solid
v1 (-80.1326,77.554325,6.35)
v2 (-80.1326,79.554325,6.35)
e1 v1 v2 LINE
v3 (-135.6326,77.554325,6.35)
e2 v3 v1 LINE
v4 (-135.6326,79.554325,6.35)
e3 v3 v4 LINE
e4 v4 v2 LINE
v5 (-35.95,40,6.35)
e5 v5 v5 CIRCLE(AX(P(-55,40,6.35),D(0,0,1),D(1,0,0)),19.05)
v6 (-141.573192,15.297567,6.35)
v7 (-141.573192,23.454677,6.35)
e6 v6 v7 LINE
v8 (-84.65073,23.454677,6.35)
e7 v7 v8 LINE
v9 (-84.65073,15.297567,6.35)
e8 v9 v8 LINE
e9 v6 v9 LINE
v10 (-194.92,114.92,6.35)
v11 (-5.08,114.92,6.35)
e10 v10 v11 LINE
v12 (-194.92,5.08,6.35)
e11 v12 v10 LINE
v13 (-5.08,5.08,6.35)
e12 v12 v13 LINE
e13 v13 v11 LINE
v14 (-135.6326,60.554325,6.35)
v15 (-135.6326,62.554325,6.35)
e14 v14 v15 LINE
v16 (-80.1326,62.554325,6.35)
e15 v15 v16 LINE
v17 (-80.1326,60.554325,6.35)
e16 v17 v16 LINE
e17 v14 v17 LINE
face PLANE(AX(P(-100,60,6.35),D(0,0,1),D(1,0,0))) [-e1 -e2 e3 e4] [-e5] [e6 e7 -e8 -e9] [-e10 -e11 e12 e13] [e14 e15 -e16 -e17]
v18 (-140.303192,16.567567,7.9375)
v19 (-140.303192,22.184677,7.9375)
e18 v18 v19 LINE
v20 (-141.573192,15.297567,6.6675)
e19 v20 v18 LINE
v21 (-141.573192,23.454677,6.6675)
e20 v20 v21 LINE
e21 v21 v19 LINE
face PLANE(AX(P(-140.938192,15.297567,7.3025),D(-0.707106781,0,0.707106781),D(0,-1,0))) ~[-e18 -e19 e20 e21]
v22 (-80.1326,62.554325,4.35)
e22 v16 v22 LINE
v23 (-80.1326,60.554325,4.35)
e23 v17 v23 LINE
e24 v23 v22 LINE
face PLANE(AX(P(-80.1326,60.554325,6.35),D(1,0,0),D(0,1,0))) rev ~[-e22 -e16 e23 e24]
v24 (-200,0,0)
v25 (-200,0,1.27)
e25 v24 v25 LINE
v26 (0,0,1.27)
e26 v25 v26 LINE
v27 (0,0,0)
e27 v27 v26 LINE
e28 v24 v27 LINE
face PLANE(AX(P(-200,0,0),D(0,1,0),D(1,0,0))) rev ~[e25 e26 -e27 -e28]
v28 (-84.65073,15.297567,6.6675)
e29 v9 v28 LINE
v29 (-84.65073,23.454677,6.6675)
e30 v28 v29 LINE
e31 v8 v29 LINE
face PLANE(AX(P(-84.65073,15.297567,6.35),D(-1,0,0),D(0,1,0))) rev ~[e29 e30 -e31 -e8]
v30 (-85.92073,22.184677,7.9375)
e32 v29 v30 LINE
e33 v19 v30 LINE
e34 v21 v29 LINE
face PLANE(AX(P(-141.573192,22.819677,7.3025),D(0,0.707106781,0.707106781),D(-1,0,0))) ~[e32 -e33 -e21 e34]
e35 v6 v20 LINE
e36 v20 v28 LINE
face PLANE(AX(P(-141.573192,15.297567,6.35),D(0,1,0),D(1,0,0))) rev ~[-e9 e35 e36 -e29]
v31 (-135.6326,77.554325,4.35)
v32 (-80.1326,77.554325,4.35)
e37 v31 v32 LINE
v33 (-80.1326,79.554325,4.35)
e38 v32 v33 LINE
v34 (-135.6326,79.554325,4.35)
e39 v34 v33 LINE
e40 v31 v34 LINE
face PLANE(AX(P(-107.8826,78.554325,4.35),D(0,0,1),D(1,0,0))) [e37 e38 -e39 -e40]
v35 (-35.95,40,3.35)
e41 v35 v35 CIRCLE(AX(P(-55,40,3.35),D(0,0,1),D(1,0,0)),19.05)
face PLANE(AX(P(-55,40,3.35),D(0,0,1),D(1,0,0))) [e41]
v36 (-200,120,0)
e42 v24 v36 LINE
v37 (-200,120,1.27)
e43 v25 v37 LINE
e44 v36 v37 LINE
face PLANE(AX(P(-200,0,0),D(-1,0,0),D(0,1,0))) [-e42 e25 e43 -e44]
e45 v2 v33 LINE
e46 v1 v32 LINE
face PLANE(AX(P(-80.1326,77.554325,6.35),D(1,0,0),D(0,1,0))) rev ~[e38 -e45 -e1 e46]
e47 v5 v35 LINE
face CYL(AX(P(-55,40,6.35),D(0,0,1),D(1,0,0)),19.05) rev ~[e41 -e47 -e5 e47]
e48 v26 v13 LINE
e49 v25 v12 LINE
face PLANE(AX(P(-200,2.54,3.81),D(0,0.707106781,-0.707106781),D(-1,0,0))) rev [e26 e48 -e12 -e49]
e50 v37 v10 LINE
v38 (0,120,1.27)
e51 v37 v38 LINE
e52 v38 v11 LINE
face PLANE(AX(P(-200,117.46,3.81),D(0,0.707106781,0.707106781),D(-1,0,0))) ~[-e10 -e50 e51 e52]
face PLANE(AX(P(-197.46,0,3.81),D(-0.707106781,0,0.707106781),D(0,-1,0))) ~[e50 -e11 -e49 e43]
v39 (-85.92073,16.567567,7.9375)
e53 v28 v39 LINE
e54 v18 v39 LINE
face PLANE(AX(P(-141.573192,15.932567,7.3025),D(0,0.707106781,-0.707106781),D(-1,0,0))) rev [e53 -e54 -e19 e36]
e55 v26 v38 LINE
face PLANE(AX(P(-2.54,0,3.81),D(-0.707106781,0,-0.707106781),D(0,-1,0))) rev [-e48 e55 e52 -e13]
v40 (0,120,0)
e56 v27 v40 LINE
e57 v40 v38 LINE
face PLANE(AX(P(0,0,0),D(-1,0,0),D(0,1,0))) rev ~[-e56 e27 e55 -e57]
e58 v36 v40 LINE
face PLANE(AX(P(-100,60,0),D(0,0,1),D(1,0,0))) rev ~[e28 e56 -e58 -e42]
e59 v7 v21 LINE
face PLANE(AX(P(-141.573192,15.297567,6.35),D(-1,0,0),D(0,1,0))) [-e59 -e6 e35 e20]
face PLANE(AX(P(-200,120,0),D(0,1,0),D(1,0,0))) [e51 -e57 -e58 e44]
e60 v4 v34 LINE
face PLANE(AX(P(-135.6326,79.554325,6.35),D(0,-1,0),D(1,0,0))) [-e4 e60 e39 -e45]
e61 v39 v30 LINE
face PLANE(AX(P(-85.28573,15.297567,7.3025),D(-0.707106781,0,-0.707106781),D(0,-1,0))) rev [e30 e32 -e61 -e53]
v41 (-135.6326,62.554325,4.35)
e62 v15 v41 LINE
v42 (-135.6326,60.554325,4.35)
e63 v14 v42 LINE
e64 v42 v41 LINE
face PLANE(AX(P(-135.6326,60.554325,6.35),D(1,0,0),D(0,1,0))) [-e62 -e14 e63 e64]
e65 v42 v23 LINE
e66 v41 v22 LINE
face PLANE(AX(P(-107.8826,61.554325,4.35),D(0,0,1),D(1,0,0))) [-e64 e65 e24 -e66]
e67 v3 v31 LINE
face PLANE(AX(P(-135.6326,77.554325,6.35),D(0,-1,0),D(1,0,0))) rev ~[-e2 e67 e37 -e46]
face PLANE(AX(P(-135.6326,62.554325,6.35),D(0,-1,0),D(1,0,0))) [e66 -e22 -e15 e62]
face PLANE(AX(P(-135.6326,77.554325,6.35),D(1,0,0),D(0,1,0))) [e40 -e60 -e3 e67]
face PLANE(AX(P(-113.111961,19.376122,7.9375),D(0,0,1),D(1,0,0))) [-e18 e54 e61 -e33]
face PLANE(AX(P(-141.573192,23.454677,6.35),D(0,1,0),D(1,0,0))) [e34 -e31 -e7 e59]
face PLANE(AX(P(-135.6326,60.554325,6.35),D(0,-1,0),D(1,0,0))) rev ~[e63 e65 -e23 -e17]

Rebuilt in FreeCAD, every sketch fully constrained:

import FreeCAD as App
import Part
import Sketcher

V = App.Vector


def edges_at(feature, points):
    """Names of the edges that pass closest to the given points."""
    edges = feature.Shape.Edges
    near = lambda p: min(range(len(edges)), key=lambda i: edges[i].distToShape(Part.Vertex(*p))[0])
    return sorted({f"Edge{near(p) + 1}" for p in points})


def add_polygon(sketch, points):
    """Adds a closed chain of lines whose ends are joined by coincident constraints."""
    first, n = sketch.GeometryCount, len(points)
    for a, b in zip(points, points[1:] + points[:1]):
        sketch.addGeometry(Part.LineSegment(App.Vector(*a, 0), App.Vector(*b, 0)), False)
    for i in range(n):
        sketch.addConstraint(Sketcher.Constraint("Coincident", first + i, 2, first + (i + 1) % n, 1))

doc = App.newDocument("Part")
body = doc.addObject("PartDesign::Body", "Body")

# Sketch on XY plane
sketch1 = body.newObject("Sketcher::SketchObject", "Sketch")
sketch1.AttachmentSupport = (doc.getObject("XY_Plane"), [""])
sketch1.MapMode = "FlatFace"
add_polygon(sketch1, [(-200, 120), (-200, 0), (0, 0), (0, 120)])  # lines 0-3
sketch1.addConstraint(Sketcher.Constraint("Vertical", 0))
sketch1.addConstraint(Sketcher.Constraint("Horizontal", 1))
sketch1.addConstraint(Sketcher.Constraint("Vertical", 2))
sketch1.addConstraint(Sketcher.Constraint("Horizontal", 3))
sketch1.addConstraint(Sketcher.Constraint("Coincident", 1, 2, -1, 1))
sketch1.addConstraint(Sketcher.Constraint("DistanceX", 1, 1, 1, 2, 200.0))
sketch1.addConstraint(Sketcher.Constraint("DistanceY", 0, 2, 0, 1, 120.0))
pad1 = body.newObject("PartDesign::Pad", "Pad")
pad1.Profile = sketch1
pad1.Length = 6.35
doc.recompute()

chamfer = body.newObject("PartDesign::Chamfer", "Chamfer")
chamfer.Base = (pad1, edges_at(pad1, [
    (-200, 60, 6.35),
    (-100, 120, 6.35),
    (-100, 0, 6.35),
    (0, 60, 6.35),
]))
chamfer.Size = 5.08

# Sketch on XY plane
sketch2 = body.newObject("Sketcher::SketchObject", "Sketch001")
sketch2.AttachmentSupport = (doc.getObject("XY_Plane"), [""])
sketch2.MapMode = "FlatFace"
sketch2.AttachmentOffset = App.Placement(V(0, 0, 6.35), App.Rotation())
add_polygon(sketch2, [(-141.573192, 23.454677), (-141.573192, 15.297567), (-84.65073, 15.297567), (-84.65073, 23.454677)])  # lines 0-3
sketch2.addConstraint(Sketcher.Constraint("Vertical", 0))
sketch2.addConstraint(Sketcher.Constraint("Horizontal", 1))
sketch2.addConstraint(Sketcher.Constraint("Vertical", 2))
sketch2.addConstraint(Sketcher.Constraint("Horizontal", 3))
sketch2.addConstraint(Sketcher.Constraint("DistanceY", 0, 2, 0, 1, 8.15711))
sketch2.addConstraint(Sketcher.Constraint("DistanceX", 1, 1, 1, 2, 56.922462))
sketch2.addConstraint(Sketcher.Constraint("DistanceX", 0, 2, -1, 1, 141.573192))
sketch2.addConstraint(Sketcher.Constraint("DistanceY", -1, 1, 0, 2, 15.297567))
pad2 = body.newObject("PartDesign::Pad", "Pad001")
pad2.Profile = sketch2
pad2.Length = 1.5875
doc.recompute()

chamfer2 = body.newObject("PartDesign::Chamfer", "Chamfer001")
chamfer2.Base = (pad2, edges_at(pad2, [
    (-113.112, 15.298, 7.938),
    (-141.573, 19.376, 7.938),
    (-113.112, 23.455, 7.938),
    (-84.651, 19.376, 7.938),
]))
chamfer2.Size = 1.27

# Sketch on XY plane
sketch3 = body.newObject("Sketcher::SketchObject", "Sketch002")
sketch3.AttachmentSupport = (doc.getObject("XY_Plane"), [""])
sketch3.MapMode = "FlatFace"
sketch3.AttachmentOffset = App.Placement(V(0, 0, 6.35), App.Rotation())
sketch3.addGeometry(Part.Circle(V(-55, 40, 0), V(0, 0, 1), 19.05), False)
sketch3.addConstraint(Sketcher.Constraint("Diameter", 0, 38.1))
sketch3.addConstraint(Sketcher.Constraint("DistanceX", 0, 3, -1, 1, 55.0))
sketch3.addConstraint(Sketcher.Constraint("DistanceY", -1, 1, 0, 3, 40.0))
pocket1 = body.newObject("PartDesign::Pocket", "Pocket")
pocket1.Profile = sketch3
pocket1.Length = 3

# Sketch on XY plane
sketch4 = body.newObject("Sketcher::SketchObject", "Sketch003")
sketch4.AttachmentSupport = (doc.getObject("XY_Plane"), [""])
sketch4.MapMode = "FlatFace"
sketch4.AttachmentOffset = App.Placement(V(0, 0, 6.35), App.Rotation())
add_polygon(sketch4, [(-135.6326, 79.554325), (-135.6326, 77.554325), (-80.1326, 77.554325), (-80.1326, 79.554325)])  # lines 0-3
add_polygon(sketch4, [(-135.6326, 62.554325), (-135.6326, 60.554325), (-80.1326, 60.554325), (-80.1326, 62.554325)])  # lines 4-7
sketch4.addConstraint(Sketcher.Constraint("Vertical", 0))
sketch4.addConstraint(Sketcher.Constraint("Horizontal", 1))
sketch4.addConstraint(Sketcher.Constraint("Vertical", 2))
sketch4.addConstraint(Sketcher.Constraint("Horizontal", 3))
sketch4.addConstraint(Sketcher.Constraint("Vertical", 4))
sketch4.addConstraint(Sketcher.Constraint("Horizontal", 5))
sketch4.addConstraint(Sketcher.Constraint("Vertical", 6))
sketch4.addConstraint(Sketcher.Constraint("Horizontal", 7))
sketch4.addConstraint(Sketcher.Constraint("Vertical", 3, 2, 4, 2))
sketch4.addConstraint(Sketcher.Constraint("Vertical", 2, 2, 5, 2))
sketch4.addConstraint(Sketcher.Constraint("Equal", 2, 4))
sketch4.addConstraint(Sketcher.Constraint("DistanceY", 0, 2, 0, 1, 2.0))
sketch4.addConstraint(Sketcher.Constraint("DistanceX", 1, 1, 1, 2, 55.5))
sketch4.addConstraint(Sketcher.Constraint("DistanceY", 4, 2, 0, 2, 17.0))
sketch4.addConstraint(Sketcher.Constraint("DistanceX", 0, 2, -1, 1, 135.6326))
sketch4.addConstraint(Sketcher.Constraint("DistanceY", -1, 1, 0, 2, 77.554325))
pocket2 = body.newObject("PartDesign::Pocket", "Pocket001")
pocket2.Profile = sketch4
pocket2.Length = 2

doc.recompute()
